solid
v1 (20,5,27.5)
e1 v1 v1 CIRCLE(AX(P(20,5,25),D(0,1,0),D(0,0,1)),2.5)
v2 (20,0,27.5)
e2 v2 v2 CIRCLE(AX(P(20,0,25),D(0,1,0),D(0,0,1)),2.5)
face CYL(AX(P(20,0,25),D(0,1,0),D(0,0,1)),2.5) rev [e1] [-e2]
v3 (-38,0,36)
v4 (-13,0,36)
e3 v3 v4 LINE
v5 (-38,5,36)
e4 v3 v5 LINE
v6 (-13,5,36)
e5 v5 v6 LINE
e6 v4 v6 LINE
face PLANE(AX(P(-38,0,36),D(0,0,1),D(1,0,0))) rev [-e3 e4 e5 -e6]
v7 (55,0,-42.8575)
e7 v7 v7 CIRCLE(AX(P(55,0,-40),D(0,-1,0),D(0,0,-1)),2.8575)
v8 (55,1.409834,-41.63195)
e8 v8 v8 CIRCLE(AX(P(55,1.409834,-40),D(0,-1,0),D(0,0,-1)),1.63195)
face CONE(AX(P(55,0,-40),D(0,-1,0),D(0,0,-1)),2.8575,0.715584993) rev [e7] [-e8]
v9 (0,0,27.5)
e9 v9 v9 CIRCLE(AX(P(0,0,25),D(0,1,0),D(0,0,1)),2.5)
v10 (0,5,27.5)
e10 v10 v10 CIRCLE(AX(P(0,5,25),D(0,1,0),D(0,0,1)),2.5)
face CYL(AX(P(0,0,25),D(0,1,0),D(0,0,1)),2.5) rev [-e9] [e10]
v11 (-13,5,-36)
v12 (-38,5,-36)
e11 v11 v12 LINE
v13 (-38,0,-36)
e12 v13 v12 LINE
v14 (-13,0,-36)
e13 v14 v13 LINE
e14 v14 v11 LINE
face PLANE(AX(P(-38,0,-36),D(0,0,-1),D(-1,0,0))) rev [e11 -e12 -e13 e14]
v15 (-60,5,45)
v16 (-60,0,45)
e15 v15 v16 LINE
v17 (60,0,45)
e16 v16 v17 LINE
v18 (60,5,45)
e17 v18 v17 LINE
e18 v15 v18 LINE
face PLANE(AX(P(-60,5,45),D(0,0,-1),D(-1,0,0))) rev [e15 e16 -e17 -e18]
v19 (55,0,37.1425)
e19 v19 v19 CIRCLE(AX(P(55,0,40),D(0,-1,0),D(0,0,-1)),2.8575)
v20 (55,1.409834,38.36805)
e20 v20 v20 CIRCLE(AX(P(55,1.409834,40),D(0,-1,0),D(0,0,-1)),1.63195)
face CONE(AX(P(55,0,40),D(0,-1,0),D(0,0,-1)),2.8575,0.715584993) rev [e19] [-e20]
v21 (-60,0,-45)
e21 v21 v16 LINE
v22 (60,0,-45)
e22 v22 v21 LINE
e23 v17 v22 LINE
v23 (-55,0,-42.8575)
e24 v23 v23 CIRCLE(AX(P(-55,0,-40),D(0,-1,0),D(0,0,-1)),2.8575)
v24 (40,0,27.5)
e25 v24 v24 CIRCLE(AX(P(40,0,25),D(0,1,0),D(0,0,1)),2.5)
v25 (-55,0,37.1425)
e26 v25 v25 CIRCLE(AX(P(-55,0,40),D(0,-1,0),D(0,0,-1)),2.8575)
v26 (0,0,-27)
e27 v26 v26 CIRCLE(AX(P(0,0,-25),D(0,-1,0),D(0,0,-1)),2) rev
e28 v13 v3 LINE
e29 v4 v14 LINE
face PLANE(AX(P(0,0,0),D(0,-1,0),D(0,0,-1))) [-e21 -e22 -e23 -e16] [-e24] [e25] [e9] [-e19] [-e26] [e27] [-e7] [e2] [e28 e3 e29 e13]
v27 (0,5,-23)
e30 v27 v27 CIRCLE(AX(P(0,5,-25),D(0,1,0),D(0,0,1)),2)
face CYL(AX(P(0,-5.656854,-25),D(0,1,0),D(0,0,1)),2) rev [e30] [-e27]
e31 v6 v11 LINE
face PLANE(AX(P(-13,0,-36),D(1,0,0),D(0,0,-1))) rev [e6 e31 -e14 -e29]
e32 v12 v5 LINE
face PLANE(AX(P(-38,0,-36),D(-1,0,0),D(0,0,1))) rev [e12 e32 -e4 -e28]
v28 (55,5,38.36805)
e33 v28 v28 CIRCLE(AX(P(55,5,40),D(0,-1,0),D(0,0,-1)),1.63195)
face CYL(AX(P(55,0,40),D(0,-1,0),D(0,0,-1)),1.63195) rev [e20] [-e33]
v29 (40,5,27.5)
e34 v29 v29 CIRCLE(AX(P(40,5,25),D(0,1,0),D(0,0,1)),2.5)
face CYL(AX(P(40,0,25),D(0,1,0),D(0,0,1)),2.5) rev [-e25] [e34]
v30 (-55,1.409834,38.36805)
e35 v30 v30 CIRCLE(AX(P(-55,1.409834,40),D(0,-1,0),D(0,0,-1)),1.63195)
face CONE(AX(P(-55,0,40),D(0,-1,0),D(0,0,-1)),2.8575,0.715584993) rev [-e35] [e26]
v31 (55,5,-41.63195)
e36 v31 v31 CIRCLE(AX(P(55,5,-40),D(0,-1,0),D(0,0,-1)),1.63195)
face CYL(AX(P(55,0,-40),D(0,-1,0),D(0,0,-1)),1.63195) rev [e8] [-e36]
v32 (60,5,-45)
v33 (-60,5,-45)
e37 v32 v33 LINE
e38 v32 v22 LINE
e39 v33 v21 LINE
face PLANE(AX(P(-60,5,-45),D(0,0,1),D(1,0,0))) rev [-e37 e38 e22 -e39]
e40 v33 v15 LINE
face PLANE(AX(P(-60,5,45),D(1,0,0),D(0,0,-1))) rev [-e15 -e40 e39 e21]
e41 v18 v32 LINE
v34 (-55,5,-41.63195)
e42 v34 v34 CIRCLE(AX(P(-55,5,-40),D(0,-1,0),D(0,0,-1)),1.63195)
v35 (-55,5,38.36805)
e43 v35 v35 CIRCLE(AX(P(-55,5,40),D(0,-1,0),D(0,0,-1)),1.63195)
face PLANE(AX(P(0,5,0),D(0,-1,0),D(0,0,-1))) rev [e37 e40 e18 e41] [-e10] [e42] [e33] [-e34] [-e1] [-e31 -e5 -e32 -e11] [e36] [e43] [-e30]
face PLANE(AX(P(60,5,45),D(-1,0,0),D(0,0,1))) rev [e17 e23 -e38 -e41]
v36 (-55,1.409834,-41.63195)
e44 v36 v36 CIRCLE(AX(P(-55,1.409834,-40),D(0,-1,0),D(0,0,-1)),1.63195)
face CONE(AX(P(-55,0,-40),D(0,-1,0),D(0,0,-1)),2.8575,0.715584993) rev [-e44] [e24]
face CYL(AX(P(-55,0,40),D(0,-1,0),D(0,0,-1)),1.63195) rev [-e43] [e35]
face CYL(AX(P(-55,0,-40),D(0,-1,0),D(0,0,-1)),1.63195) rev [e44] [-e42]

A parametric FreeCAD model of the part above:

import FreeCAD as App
import Part
import Sketcher
from FreeCAD import Vector
Q = App.Units.Quantity


def add_polygon(sketch, points):
    """Adds a closed chain of lines whose ends are joined by coincident constraints."""
    first, n = sketch.GeometryCount, len(points)
    for a, b in zip(points, points[1:] + points[:1]):
        sketch.addGeometry(Part.LineSegment(App.Vector(*a, 0), App.Vector(*b, 0)), False)
    for i in range(n):
        sketch.addConstraint(Sketcher.Constraint("Coincident", first + i, 2, first + (i + 1) % n, 1))

doc = App.newDocument("Part")
params = doc.addObject("Spreadsheet::Sheet", "Params")
for row, (alias, value) in enumerate([
    ("sketch1_width", "120 mm"),
    ("sketch1_height", "90 mm"),
    ("pad1_length", "5 mm"),
    ("hole_diameter", "3.2639 mm"),
    ("hole_csink_diameter", "5.715 mm"),
    ("sketch3_diameter", "5 mm"),
    ("sketch3_width", "25 mm"),
    ("sketch3_height", "72 mm"),
    ("sketch4_diameter", "4 mm"),
    ("pocket2_length", "5 mm"),
], start=1):
    params.set(f"A{row}", alias)
    params.set(f"B{row}", "=" + value)
    params.setAlias(f"B{row}", alias)

body = doc.addObject("PartDesign::Body", "Body")

# Sketch on XZ plane
sketch1 = doc.addObject("Sketcher::SketchObject", "Sketch")
body.addObject(sketch1)
sketch1.AttachmentSupport = (doc.XZ_Plane, [""])
sketch1.MapMode = "FlatFace"
add_polygon(sketch1, [(-60, -45), (-60, 45), (60, 45), (60, -45)])  # lines 0-3
sketch1.addConstraint([
    Sketcher.Constraint("Vertical", 0),
    Sketcher.Constraint("Horizontal", 1),
    Sketcher.Constraint("Vertical", 2),
    Sketcher.Constraint("Horizontal", 3),
    Sketcher.Constraint("Symmetric", 0, 2, 2, 2, -1, 1),
    Sketcher.Constraint("DistanceX", 1, 1, 1, 2, Q("120 mm")),
    Sketcher.Constraint("DistanceY", 0, 1, 0, 2, Q("90 mm")),
])
sketch1.setExpression("Constraints[9]", "Params.sketch1_width")
sketch1.setExpression("Constraints[10]", "Params.sketch1_height")
pad1 = doc.addObject("PartDesign::Pad", "Pad")
body.addObject(pad1)
pad1.Profile = sketch1
pad1.setExpression("Length", "Params.pad1_length")
pad1.Reversed = True

# Sketch on XZ plane
sketch2 = doc.addObject("Sketcher::SketchObject", "Sketch001")
body.addObject(sketch2)
sketch2.AttachmentSupport = (doc.XZ_Plane, [""])
sketch2.MapMode = "FlatFace"
sketch2.addGeometry([
    Part.Circle(Vector(55, -40, 0), Vector(0, 0, 1), 1.6),
    Part.Circle(Vector(55, 40, 0), Vector(0, 0, 1), 1.6),
    Part.Circle(Vector(-55, 40, 0), Vector(0, 0, 1), 1.6),
    Part.Circle(Vector(-55, -40, 0), Vector(0, 0, 1), 1.6),
], False)
sketch2.addConstraint([
    Sketcher.Constraint("Equal", 0, 1),
    Sketcher.Constraint("Equal", 1, 2),
    Sketcher.Constraint("Equal", 2, 3),
    Sketcher.Constraint("Symmetric", 0, 3, 2, 3, -1, 1),
    Sketcher.Constraint("Symmetric", 1, 3, 3, 3, -1, 1),
    Sketcher.Constraint("Symmetric", 1, 3, 2, 3, -2),
    Sketcher.Constraint("DistanceX", -1, 1, 0, 3, Q("55 mm")),
    Sketcher.Constraint("DistanceY", 0, 3, -1, 1, Q("40 mm")),
    Sketcher.Constraint("Diameter", 0, Q("3.2639 mm")),
])
doc.recompute()
hole = doc.addObject("PartDesign::Hole", "Hole")
body.addObject(hole)
hole.Profile = sketch2
hole.ThreadType = "None"
hole.setExpression("Diameter", "Params.hole_diameter")
hole.DepthType = "ThroughAll"
hole.HoleCutType = "Countersink"
hole.setExpression("HoleCutDiameter", "Params.hole_csink_diameter")
hole.HoleCutCountersinkAngle = 82

# Sketch on XZ plane
sketch3 = doc.addObject("Sketcher::SketchObject", "Sketch002")
body.addObject(sketch3)
sketch3.AttachmentSupport = (doc.XZ_Plane, [""])
sketch3.MapMode = "FlatFace"
sketch3.AttachmentOffset = App.Placement(Vector(0, 0, -5), App.Rotation())
sketch3.addGeometry(Part.Circle(Vector(0, 25, 0), Vector(0, 0, 1), 2.5), False)  # 0
sketch3.addGeometry(Part.Circle(Vector(20, 25, 0), Vector(0, 0, 1), 2.5), False)  # 1
sketch3.addGeometry(Part.Circle(Vector(40, 25, 0), Vector(0, 0, 1), 2.5), False)  # 2
add_polygon(sketch3, [(-38, -36), (-38, 36), (-13, 36), (-13, -36)])  # lines 3-6
sketch3.addConstraint([
    Sketcher.Constraint("Vertical", 3),
    Sketcher.Constraint("Horizontal", 4),
    Sketcher.Constraint("Vertical", 5),
    Sketcher.Constraint("Horizontal", 6),
    Sketcher.Constraint("Equal", 0, 1),
    Sketcher.Constraint("Equal", 1, 2),
    Sketcher.Constraint("PointOnObject", 0, 3, -2),
    Sketcher.Constraint("Horizontal", 0, 3, 1, 3),
    Sketcher.Constraint("Horizontal", 1, 3, 2, 3),
    Sketcher.Constraint("Diameter", 0, Q("5 mm")),
    Sketcher.Constraint("DistanceX", 4, 1, 4, 2, Q("25 mm")),
    Sketcher.Constraint("DistanceY", 3, 1, 3, 2, Q("72 mm")),
    Sketcher.Constraint("DistanceY", -1, 1, 0, 3, Q("25 mm")),
    Sketcher.Constraint("DistanceX", -1, 1, 1, 3, Q("20 mm")),
    Sketcher.Constraint("DistanceX", -1, 1, 2, 3, Q("40 mm")),
    Sketcher.Constraint("DistanceX", 3, 2, -1, 1, Q("38 mm")),
    Sketcher.Constraint("DistanceY", -1, 1, 3, 2, Q("36 mm")),
])
sketch3.setExpression("Constraints[13]", "Params.sketch3_diameter")
sketch3.setExpression("Constraints[14]", "Params.sketch3_width")
sketch3.setExpression("Constraints[15]", "Params.sketch3_height")
pocket1 = doc.addObject("PartDesign::Pocket", "Pocket")
body.addObject(pocket1)
pocket1.Profile = sketch3
pocket1.Type = "ThroughAll"
pocket1.Reversed = True

# Sketch on XZ plane
sketch4 = doc.addObject("Sketcher::SketchObject", "Sketch003")
body.addObject(sketch4)
sketch4.AttachmentSupport = (doc.XZ_Plane, [""])
sketch4.MapMode = "FlatFace"
sketch4.AttachmentOffset = App.Placement(Vector(0, 0, -5), App.Rotation())
sketch4.addGeometry(Part.Circle(Vector(0, -25, 0), Vector(0, 0, 1), 2), False)
sketch4.addConstraint([
    Sketcher.Constraint("PointOnObject", 0, 3, -2),
    Sketcher.Constraint("Diameter", 0, Q("4 mm")),
    Sketcher.Constraint("DistanceY", 0, 3, -1, 1, Q("25 mm")),
])
sketch4.setExpression("Constraints[1]", "Params.sketch4_diameter")
pocket2 = doc.addObject("PartDesign::Pocket", "Pocket001")
body.addObject(pocket2)
pocket2.Profile = sketch4
pocket2.setExpression("Length", "Params.pocket2_length")
pocket2.Reversed = True

doc.recompute()
